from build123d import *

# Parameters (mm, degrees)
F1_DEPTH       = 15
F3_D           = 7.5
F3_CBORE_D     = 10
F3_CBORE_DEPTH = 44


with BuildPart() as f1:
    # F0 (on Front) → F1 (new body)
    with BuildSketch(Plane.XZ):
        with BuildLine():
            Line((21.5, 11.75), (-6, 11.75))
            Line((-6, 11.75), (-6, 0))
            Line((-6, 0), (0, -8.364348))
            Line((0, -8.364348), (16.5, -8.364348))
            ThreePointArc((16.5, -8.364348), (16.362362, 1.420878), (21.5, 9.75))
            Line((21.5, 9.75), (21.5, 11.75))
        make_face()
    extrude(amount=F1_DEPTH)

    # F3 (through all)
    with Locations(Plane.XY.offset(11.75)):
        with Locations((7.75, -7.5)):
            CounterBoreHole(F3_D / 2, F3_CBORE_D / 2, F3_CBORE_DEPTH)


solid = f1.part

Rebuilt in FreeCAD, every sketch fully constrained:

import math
import FreeCAD as App
import Part
import Sketcher

doc = App.newDocument("Part")
body = doc.addObject("PartDesign::Body", "Body")

# Sketch on XZ plane
sketch1 = body.newObject("Sketcher::SketchObject", "Sketch")
sketch1.AttachmentSupport = (doc.getObject("XZ_Plane"), [""])
sketch1.MapMode = "FlatFace"
sketch1.addGeometry([
    Part.LineSegment(App.Vector(21.5, 11.75, 0), App.Vector(-6, 11.75, 0)),  # 0
    Part.LineSegment(App.Vector(-6, 11.75, 0), App.Vector(-6, 0, 0)),  # 1
    Part.LineSegment(App.Vector(-6, 0, 0), App.Vector(0, -8.364348, 0)),  # 2
    Part.LineSegment(App.Vector(0, -8.364348, 0), App.Vector(16.5, -8.364348, 0)),  # 3
    Part.ArcOfCircle(Part.Circle(App.Vector(33.231534, -3.235423, 0), App.Vector(0, 0, 1), 17.500003), math.radians(132.095879), math.radians(197.042525)),  # 4
    Part.LineSegment(App.Vector(21.5, 9.75, 0), App.Vector(21.5, 11.75, 0)),  # 5
], False)
sketch1.addConstraint([
    Sketcher.Constraint("Coincident", 0, 2, 1, 1),
    Sketcher.Constraint("Coincident", 1, 2, 2, 1),
    Sketcher.Constraint("Coincident", 2, 2, 3, 1),
    Sketcher.Constraint("Coincident", 3, 2, 4, 2),
    Sketcher.Constraint("Coincident", 4, 1, 5, 1),
    Sketcher.Constraint("Coincident", 5, 2, 0, 1),
    Sketcher.Constraint("Horizontal", 0),
    Sketcher.Constraint("Vertical", 1),
    Sketcher.Constraint("Horizontal", 3),
    Sketcher.Constraint("Vertical", 5),
    Sketcher.Constraint("PointOnObject", 1, 2, -1),
    Sketcher.Constraint("PointOnObject", 2, 2, -2),
    Sketcher.Constraint("DistanceY", 5, 1, 5, 2, 2.0),
    Sketcher.Constraint("DistanceX", 0, 2, 0, 1, 27.5),
    Sketcher.Constraint("DistanceX", 3, 1, 3, 2, 16.5),
    Sketcher.Constraint("DistanceX", 0, 2, -1, 1, 6.0),
    Sketcher.Constraint("DistanceY", 1, 2, 1, 1, 11.75),
    Sketcher.Constraint("Radius", 4, 17.500003),
    Sketcher.Constraint("Distance", 2, 10.2938),
])
pad1 = body.newObject("PartDesign::Pad", "Pad")
pad1.Profile = sketch1
pad1.Length = 15

# Sketch on XY plane
sketch2 = body.newObject("Sketcher::SketchObject", "Sketch001")
sketch2.AttachmentSupport = (doc.getObject("XY_Plane"), [""])
sketch2.MapMode = "FlatFace"
sketch2.AttachmentOffset = App.Placement(App.Vector(0, 0, 11.75), App.Rotation())
sketch2.addGeometry(Part.Circle(App.Vector(7.75, -7.5, 0), App.Vector(0, 0, 1), 3.75), False)
sketch2.addConstraint([
    Sketcher.Constraint("Diameter", 0, 7.5),
    Sketcher.Constraint("DistanceY", 0, 3, -1, 1, 7.5),
    Sketcher.Constraint("DistanceX", -1, 1, 0, 3, 7.75),
])
doc.recompute()
hole = body.newObject("PartDesign::Hole", "Hole")
hole.Profile = sketch2
hole.ThreadType = "None"
hole.Diameter = 7.5
hole.DepthType = "ThroughAll"
hole.HoleCutType = "Counterbore"
hole.HoleCutDiameter = 10
hole.HoleCutDepth = 44

doc.recompute()
